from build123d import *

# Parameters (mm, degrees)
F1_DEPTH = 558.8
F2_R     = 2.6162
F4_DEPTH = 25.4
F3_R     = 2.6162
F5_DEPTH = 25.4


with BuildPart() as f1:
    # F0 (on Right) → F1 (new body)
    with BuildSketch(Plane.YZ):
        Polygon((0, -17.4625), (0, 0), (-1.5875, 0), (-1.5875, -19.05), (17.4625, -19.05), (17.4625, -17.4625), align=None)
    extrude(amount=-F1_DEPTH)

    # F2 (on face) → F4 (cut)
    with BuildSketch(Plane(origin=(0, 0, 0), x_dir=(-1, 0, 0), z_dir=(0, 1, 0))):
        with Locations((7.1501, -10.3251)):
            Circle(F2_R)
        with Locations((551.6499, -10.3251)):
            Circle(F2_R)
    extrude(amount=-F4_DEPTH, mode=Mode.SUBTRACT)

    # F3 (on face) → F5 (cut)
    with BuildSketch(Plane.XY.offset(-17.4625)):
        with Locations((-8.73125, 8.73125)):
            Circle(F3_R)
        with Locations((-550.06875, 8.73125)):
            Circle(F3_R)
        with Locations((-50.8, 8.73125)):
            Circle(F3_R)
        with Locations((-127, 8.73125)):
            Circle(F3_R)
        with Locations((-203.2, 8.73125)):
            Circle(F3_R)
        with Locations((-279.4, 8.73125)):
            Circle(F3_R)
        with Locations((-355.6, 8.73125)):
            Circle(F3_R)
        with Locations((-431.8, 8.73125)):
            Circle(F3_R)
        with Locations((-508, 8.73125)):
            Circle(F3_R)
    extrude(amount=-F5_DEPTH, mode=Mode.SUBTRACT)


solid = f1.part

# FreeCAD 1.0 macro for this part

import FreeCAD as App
import Part
import Sketcher
from FreeCAD import Vector
Q = App.Units.Quantity

doc = App.newDocument("Part")
body = doc.addObject("PartDesign::Body", "Body")

# Sketch on YZ plane
sketch1 = doc.addObject("Sketcher::SketchObject", "Sketch")
body.addObject(sketch1)
sketch1.AttachmentSupport = (doc.YZ_Plane, [""])
sketch1.MapMode = "FlatFace"
sketch1.addGeometry([
    Part.LineSegment(Vector(0, -17.5, 0), Vector(0, 0, 0)),  # 0
    Part.LineSegment(Vector(0, 0, 0), Vector(-1.6, 0, 0)),  # 1
    Part.LineSegment(Vector(-1.6, 0, 0), Vector(-1.6, -19.1, 0)),  # 2
    Part.LineSegment(Vector(-1.6, -19.1, 0), Vector(17.5, -19.1, 0)),  # 3
    Part.LineSegment(Vector(17.5, -19.1, 0), Vector(17.5, -17.5, 0)),  # 4
    Part.LineSegment(Vector(17.5, -17.5, 0), Vector(0, -17.5, 0)),  # 5
], False)
sketch1.addConstraint([
    Sketcher.Constraint("Coincident", 0, 2, 1, 1),
    Sketcher.Constraint("Coincident", 1, 2, 2, 1),
    Sketcher.Constraint("Coincident", 2, 2, 3, 1),
    Sketcher.Constraint("Coincident", 3, 2, 4, 1),
    Sketcher.Constraint("Coincident", 4, 2, 5, 1),
    Sketcher.Constraint("Coincident", 5, 2, 0, 1),
    Sketcher.Constraint("Vertical", 0),
    Sketcher.Constraint("Horizontal", 1),
    Sketcher.Constraint("Vertical", 2),
    Sketcher.Constraint("Horizontal", 3),
    Sketcher.Constraint("Vertical", 4),
    Sketcher.Constraint("Horizontal", 5),
    Sketcher.Constraint("Coincident", 0, 2, -1, 1),
    Sketcher.Constraint("Equal", 5, 0),
    Sketcher.Constraint("Equal", 3, 2),
    Sketcher.Constraint("DistanceX", 3, 1, 3, 2, Q("0.75 in")),
    Sketcher.Constraint("DistanceX", 1, 2, 1, 1, Q("0.0625 in")),
])
pad1 = doc.addObject("PartDesign::Pad", "Pad")
body.addObject(pad1)
pad1.Profile = sketch1
pad1.Length = Q("22 in")
pad1.Reversed = True

# Sketch on XZ plane
sketch2 = doc.addObject("Sketcher::SketchObject", "Sketch001")
body.addObject(sketch2)
sketch2.AttachmentSupport = (doc.XZ_Plane, [""])
sketch2.MapMode = "FlatFace"
sketch2.addGeometry([
    Part.Circle(Vector(-7.2, -10.3, 0), Vector(0, 0, 1), 2.6),
    Part.Circle(Vector(-551.6, -10.3, 0), Vector(0, 0, 1), 2.6),
], False)
sketch2.addConstraint([
    Sketcher.Constraint("Equal", 0, 1),
    Sketcher.Constraint("Horizontal", 0, 3, 1, 3),
    Sketcher.Constraint("Diameter", 0, Q("0.206 in")),
    Sketcher.Constraint("DistanceX", 1, 3, 0, 3, Q("21.437 in")),
    Sketcher.Constraint("DistanceX", 0, 3, -1, 1, Q("0.2815 in")),
    Sketcher.Constraint("DistanceY", 0, 3, -1, 1, Q("0.4065 in")),
])
pocket1 = doc.addObject("PartDesign::Pocket", "Pocket")
body.addObject(pocket1)
pocket1.Profile = sketch2
pocket1.Length = Q("1 in")
pocket1.Reversed = True

# Sketch on XY plane
sketch3 = doc.addObject("Sketcher::SketchObject", "Sketch002")
body.addObject(sketch3)
sketch3.AttachmentSupport = (doc.XY_Plane, [""])
sketch3.MapMode = "FlatFace"
sketch3.AttachmentOffset = App.Placement(Vector(0, 0, -0.6875 * 25.4), App.Rotation())
sketch3.addGeometry([
    Part.Circle(Vector(-8.7, 8.7, 0), Vector(0, 0, 1), 2.6),  # 0
    Part.Circle(Vector(-550.1, 8.7, 0), Vector(0, 0, 1), 2.6),  # 1
    Part.Circle(Vector(-50.8, 8.7, 0), Vector(0, 0, 1), 2.6),  # 2
    Part.Circle(Vector(-127, 8.7, 0), Vector(0, 0, 1), 2.6),  # 3
    Part.Circle(Vector(-203.2, 8.7, 0), Vector(0, 0, 1), 2.6),  # 4
    Part.Circle(Vector(-279.4, 8.7, 0), Vector(0, 0, 1), 2.6),  # 5
    Part.Circle(Vector(-355.6, 8.7, 0), Vector(0, 0, 1), 2.6),  # 6
    Part.Circle(Vector(-431.8, 8.7, 0), Vector(0, 0, 1), 2.6),  # 7
    Part.Circle(Vector(-508, 8.7, 0), Vector(0, 0, 1), 2.6),  # 8
], False)
sketch3.addConstraint([
    Sketcher.Constraint("Equal", 0, 1),
    Sketcher.Constraint("Equal", 1, 2),
    Sketcher.Constraint("Equal", 2, 3),
    Sketcher.Constraint("Equal", 3, 4),
    Sketcher.Constraint("Equal", 4, 5),
    Sketcher.Constraint("Equal", 5, 6),
    Sketcher.Constraint("Equal", 6, 7),
    Sketcher.Constraint("Equal", 7, 8),
    Sketcher.Constraint("Horizontal", 0, 3, 1, 3),
    Sketcher.Constraint("Horizontal", 1, 3, 2, 3),
    Sketcher.Constraint("Horizontal", 2, 3, 3, 3),
    Sketcher.Constraint("Horizontal", 3, 3, 4, 3),
    Sketcher.Constraint("Horizontal", 4, 3, 5, 3),
    Sketcher.Constraint("Horizontal", 5, 3, 6, 3),
    Sketcher.Constraint("Horizontal", 6, 3, 7, 3),
    Sketcher.Constraint("Horizontal", 7, 3, 8, 3),
    Sketcher.Constraint("Diameter", 0, Q("0.206 in")),
    Sketcher.Constraint("DistanceX", 2, 3, -1, 1, Q("2 in")),
    Sketcher.Constraint("DistanceX", 3, 3, -1, 1, Q("5 in")),
    Sketcher.Constraint("DistanceX", 4, 3, -1, 1, Q("8 in")),
    Sketcher.Constraint("DistanceX", 5, 3, -1, 1, Q("11 in")),
    Sketcher.Constraint("DistanceX", 6, 3, -1, 1, Q("14 in")),
    Sketcher.Constraint("DistanceX", 7, 3, -1, 1, Q("17 in")),
    Sketcher.Constraint("DistanceX", 8, 3, -1, 1, Q("20 in")),
    Sketcher.Constraint("DistanceX", 0, 3, -1, 1, Q("0.34375 in")),
    Sketcher.Constraint("DistanceY", -1, 1, 0, 3, Q("0.34375 in")),
    Sketcher.Constraint("DistanceX", 1, 3, -1, 1, Q("21.65625 in")),
])
pocket2 = doc.addObject("PartDesign::Pocket", "Pocket001")
body.addObject(pocket2)
pocket2.Profile = sketch3
pocket2.Length = Q("1 in")

doc.recompute()
